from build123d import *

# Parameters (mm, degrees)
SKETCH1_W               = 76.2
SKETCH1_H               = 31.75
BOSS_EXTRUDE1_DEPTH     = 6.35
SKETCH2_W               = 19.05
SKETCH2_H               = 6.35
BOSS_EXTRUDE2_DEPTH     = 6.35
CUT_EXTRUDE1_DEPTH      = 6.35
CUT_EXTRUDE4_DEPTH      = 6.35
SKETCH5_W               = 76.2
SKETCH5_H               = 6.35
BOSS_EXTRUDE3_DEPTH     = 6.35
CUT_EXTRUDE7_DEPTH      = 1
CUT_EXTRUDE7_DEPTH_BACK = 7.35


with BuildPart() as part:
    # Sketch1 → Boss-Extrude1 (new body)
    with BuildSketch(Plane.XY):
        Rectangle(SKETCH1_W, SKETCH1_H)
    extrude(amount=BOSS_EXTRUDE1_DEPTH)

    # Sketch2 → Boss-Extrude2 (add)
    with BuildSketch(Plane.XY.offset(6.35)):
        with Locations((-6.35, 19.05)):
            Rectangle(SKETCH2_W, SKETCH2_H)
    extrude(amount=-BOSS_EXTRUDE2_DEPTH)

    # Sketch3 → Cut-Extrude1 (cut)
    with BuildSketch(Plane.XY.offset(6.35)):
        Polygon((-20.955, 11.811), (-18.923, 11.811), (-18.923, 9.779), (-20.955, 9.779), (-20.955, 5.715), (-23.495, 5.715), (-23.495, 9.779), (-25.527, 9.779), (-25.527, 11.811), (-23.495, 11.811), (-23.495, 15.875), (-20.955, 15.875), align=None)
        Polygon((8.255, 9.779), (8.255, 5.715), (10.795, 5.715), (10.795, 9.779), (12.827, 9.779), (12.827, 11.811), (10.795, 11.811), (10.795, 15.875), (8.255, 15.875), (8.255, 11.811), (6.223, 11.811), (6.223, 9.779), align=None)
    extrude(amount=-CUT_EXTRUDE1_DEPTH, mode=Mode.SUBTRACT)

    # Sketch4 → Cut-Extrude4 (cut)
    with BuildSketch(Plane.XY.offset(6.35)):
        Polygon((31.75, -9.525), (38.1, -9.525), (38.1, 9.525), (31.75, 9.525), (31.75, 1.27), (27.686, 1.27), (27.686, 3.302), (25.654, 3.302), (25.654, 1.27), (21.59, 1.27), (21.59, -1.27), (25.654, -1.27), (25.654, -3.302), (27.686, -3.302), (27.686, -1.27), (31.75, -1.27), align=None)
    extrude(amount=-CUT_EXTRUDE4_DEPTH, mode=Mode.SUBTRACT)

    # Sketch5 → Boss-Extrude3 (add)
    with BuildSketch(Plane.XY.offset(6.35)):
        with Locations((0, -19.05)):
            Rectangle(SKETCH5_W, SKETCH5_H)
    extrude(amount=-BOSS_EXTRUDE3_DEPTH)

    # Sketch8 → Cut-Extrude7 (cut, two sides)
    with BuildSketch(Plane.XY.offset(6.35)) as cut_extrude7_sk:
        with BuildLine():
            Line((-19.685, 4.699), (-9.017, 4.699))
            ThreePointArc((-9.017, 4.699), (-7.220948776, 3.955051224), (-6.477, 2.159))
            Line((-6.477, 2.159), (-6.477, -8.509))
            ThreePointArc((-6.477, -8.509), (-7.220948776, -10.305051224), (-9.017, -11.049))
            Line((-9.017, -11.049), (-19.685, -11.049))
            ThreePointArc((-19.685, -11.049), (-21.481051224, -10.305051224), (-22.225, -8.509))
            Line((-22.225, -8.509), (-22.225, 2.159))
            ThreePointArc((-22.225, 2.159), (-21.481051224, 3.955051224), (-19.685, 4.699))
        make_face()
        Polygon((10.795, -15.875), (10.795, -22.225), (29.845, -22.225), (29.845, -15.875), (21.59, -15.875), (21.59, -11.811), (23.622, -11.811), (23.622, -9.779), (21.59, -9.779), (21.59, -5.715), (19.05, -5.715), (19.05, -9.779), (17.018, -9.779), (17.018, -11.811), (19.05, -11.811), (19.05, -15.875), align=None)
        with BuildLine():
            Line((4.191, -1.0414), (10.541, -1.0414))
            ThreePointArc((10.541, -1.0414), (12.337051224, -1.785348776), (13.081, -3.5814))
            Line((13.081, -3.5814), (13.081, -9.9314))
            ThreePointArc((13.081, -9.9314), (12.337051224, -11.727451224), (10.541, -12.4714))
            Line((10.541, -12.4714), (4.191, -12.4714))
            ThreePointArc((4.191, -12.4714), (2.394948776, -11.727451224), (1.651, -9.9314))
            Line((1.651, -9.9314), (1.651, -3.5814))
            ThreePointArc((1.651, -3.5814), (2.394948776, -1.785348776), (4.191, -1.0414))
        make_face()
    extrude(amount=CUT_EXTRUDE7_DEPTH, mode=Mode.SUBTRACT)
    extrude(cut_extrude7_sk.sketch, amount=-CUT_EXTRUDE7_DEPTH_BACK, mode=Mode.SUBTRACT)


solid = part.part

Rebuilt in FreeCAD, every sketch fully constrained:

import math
import FreeCAD as App
import Part
import Sketcher
Q = App.Units.Quantity


def add_polygon(sketch, points):
    """Adds a closed chain of lines whose ends are joined by coincident constraints."""
    first, n = sketch.GeometryCount, len(points)
    for a, b in zip(points, points[1:] + points[:1]):
        sketch.addGeometry(Part.LineSegment(App.Vector(*a, 0), App.Vector(*b, 0)), False)
    for i in range(n):
        sketch.addConstraint(Sketcher.Constraint("Coincident", first + i, 2, first + (i + 1) % n, 1))

doc = App.newDocument("Part")
body = doc.addObject("PartDesign::Body", "Body")

# Sketch on XY plane
sketch1 = doc.addObject("Sketcher::SketchObject", "Sketch")
body.addObject(sketch1)
sketch1.AttachmentSupport = (doc.XY_Plane, [""])
sketch1.MapMode = "FlatFace"
add_polygon(sketch1, [(-38, 16), (-38, -16), (38, -16), (38, 16)])  # lines 0-3
sketch1.addConstraint([
    Sketcher.Constraint("Vertical", 0),
    Sketcher.Constraint("Horizontal", 1),
    Sketcher.Constraint("Vertical", 2),
    Sketcher.Constraint("Horizontal", 3),
    Sketcher.Constraint("Symmetric", 0, 2, 2, 2, -1, 1),
    Sketcher.Constraint("DistanceX", 1, 1, 1, 2, Q("3 in")),
    Sketcher.Constraint("DistanceY", 0, 2, 0, 1, Q("1.25 in")),
])
pad1 = doc.addObject("PartDesign::Pad", "Pad")
body.addObject(pad1)
pad1.Profile = sketch1
pad1.Length = Q("0.25 in")

# Sketch on XY plane
sketch2 = doc.addObject("Sketcher::SketchObject", "Sketch001")
body.addObject(sketch2)
sketch2.AttachmentSupport = (doc.XY_Plane, [""])
sketch2.MapMode = "FlatFace"
sketch2.AttachmentOffset = App.Placement(App.Vector(0, 0, 0.25 * 25.4), App.Rotation())
add_polygon(sketch2, [(-16, 22), (-16, 16), (3, 16), (3, 22)])  # lines 0-3
sketch2.addConstraint([
    Sketcher.Constraint("Vertical", 0),
    Sketcher.Constraint("Horizontal", 1),
    Sketcher.Constraint("Vertical", 2),
    Sketcher.Constraint("Horizontal", 3),
    Sketcher.Constraint("DistanceX", 1, 1, 1, 2, Q("0.75 in")),
    Sketcher.Constraint("DistanceY", 0, 2, 0, 1, Q("0.25 in")),
    Sketcher.Constraint("DistanceX", 0, 2, -1, 1, Q("0.625 in")),
    Sketcher.Constraint("DistanceY", -1, 1, 0, 2, Q("0.625 in")),
])
pad2 = doc.addObject("PartDesign::Pad", "Pad001")
body.addObject(pad2)
pad2.Profile = sketch2
pad2.Length = Q("0.25 in")
pad2.Reversed = True

# Sketch on XY plane
sketch3 = doc.addObject("Sketcher::SketchObject", "Sketch002")
body.addObject(sketch3)
sketch3.AttachmentSupport = (doc.XY_Plane, [""])
sketch3.MapMode = "FlatFace"
sketch3.AttachmentOffset = App.Placement(App.Vector(0, 0, 0.25 * 25.4), App.Rotation())
add_polygon(sketch3, [(-18.9, 11.8), (-21, 11.8), (-21, 15.9), (-23.5, 15.9), (-23.5, 11.8), (-25.5, 11.8), (-25.5, 9.8), (-23.5, 9.8), (-23.5, 5.7), (-21, 5.7), (-21, 9.8), (-18.9, 9.8)])  # lines 0-11
add_polygon(sketch3, [(8.3, 9.8), (8.3, 5.7), (10.8, 5.7), (10.8, 9.8), (12.8, 9.8), (12.8, 11.8), (10.8, 11.8), (10.8, 15.9), (8.3, 15.9), (8.3, 11.8), (6.2, 11.8), (6.2, 9.8)])  # lines 12-23
sketch3.addConstraint([
    Sketcher.Constraint("Horizontal", 0),
    Sketcher.Constraint("Vertical", 1),
    Sketcher.Constraint("Horizontal", 2),
    Sketcher.Constraint("Vertical", 3),
    Sketcher.Constraint("Horizontal", 4),
    Sketcher.Constraint("Vertical", 5),
    Sketcher.Constraint("Horizontal", 6),
    Sketcher.Constraint("Vertical", 7),
    Sketcher.Constraint("Horizontal", 8),
    Sketcher.Constraint("Vertical", 9),
    Sketcher.Constraint("Horizontal", 10),
    Sketcher.Constraint("Vertical", 11),
    Sketcher.Constraint("Vertical", 12),
    Sketcher.Constraint("Horizontal", 13),
    Sketcher.Constraint("Vertical", 14),
    Sketcher.Constraint("Horizontal", 15),
    Sketcher.Constraint("Vertical", 16),
    Sketcher.Constraint("Horizontal", 17),
    Sketcher.Constraint("Vertical", 18),
    Sketcher.Constraint("Horizontal", 19),
    Sketcher.Constraint("Vertical", 20),
    Sketcher.Constraint("Horizontal", 21),
    Sketcher.Constraint("Vertical", 22),
    Sketcher.Constraint("Horizontal", 23),
    Sketcher.Constraint("Horizontal", 0, 2, 3, 2),
    Sketcher.Constraint("Horizontal", 6, 2, 9, 2),
    Sketcher.Constraint("Horizontal", 8, 2, 12, 2),
    Sketcher.Constraint("Horizontal", 10, 2, 14, 2),
    Sketcher.Constraint("Horizontal", 11, 2, 16, 2),
    Sketcher.Constraint("Horizontal", 2, 2, 18, 2),
    Sketcher.Constraint("Horizontal", 17, 2, 20, 2),
    Sketcher.Constraint("Horizontal", 15, 2, 22, 2),
    Sketcher.Constraint("Vertical", 3, 2, 6, 2),
    Sketcher.Constraint("Vertical", 1, 2, 8, 2),
    Sketcher.Constraint("Vertical", 14, 2, 17, 2),
    Sketcher.Constraint("Vertical", 12, 2, 19, 2),
    Sketcher.Constraint("Equal", 0, 4),
    Sketcher.Constraint("Equal", 8, 13),
    Sketcher.Constraint("Equal", 10, 15),
    Sketcher.Constraint("Equal", 17, 21),
    Sketcher.Constraint("Equal", 23, 5),
    Sketcher.Constraint("Equal", 3, 7),
    Sketcher.Constraint("DistanceX", 2, 2, 2, 1, Q("0.1 in")),
    Sketcher.Constraint("DistanceX", 0, 2, 0, 1, Q("0.08 in")),
    Sketcher.Constraint("DistanceY", 1, 1, 1, 2, Q("0.16 in")),
    Sketcher.Constraint("DistanceX", 10, 2, 12, 2, Q("1.07 in")),
    Sketcher.Constraint("DistanceX", 0, 2, -1, 1, Q("0.825 in")),
    Sketcher.Constraint("DistanceY", -1, 1, 0, 2, Q("0.465 in")),
])
pocket1 = doc.addObject("PartDesign::Pocket", "Pocket")
body.addObject(pocket1)
pocket1.Profile = sketch3
pocket1.Length = Q("0.25 in")

# Sketch on XY plane
sketch4 = doc.addObject("Sketcher::SketchObject", "Sketch003")
body.addObject(sketch4)
sketch4.AttachmentSupport = (doc.XY_Plane, [""])
sketch4.MapMode = "FlatFace"
sketch4.AttachmentOffset = App.Placement(App.Vector(0, 0, 0.25 * 25.4), App.Rotation())
add_polygon(sketch4, [(31.8, -9.5), (38.1, -9.5), (38.1, 9.5), (31.8, 9.5), (31.8, 1.3), (27.7, 1.3), (27.7, 3.3), (25.7, 3.3), (25.7, 1.3), (21.6, 1.3), (21.6, -1.3), (25.7, -1.3), (25.7, -3.3), (27.7, -3.3), (27.7, -1.3), (31.8, -1.3)])  # lines 0-15
sketch4.addConstraint([
    Sketcher.Constraint("Horizontal", 0),
    Sketcher.Constraint("Vertical", 1),
    Sketcher.Constraint("Horizontal", 2),
    Sketcher.Constraint("Vertical", 3),
    Sketcher.Constraint("Horizontal", 4),
    Sketcher.Constraint("Vertical", 5),
    Sketcher.Constraint("Horizontal", 6),
    Sketcher.Constraint("Vertical", 7),
    Sketcher.Constraint("Horizontal", 8),
    Sketcher.Constraint("Vertical", 9),
    Sketcher.Constraint("Horizontal", 10),
    Sketcher.Constraint("Vertical", 11),
    Sketcher.Constraint("Horizontal", 12),
    Sketcher.Constraint("Vertical", 13),
    Sketcher.Constraint("Horizontal", 14),
    Sketcher.Constraint("Vertical", 15),
    Sketcher.Constraint("Symmetric", 7, 2, 10, 2, -1),
    Sketcher.Constraint("Symmetric", 5, 2, 12, 2, -1),
    Sketcher.Constraint("Symmetric", 3, 2, 14, 2, -1),
    Sketcher.Constraint("Horizontal", 4, 2, 7, 2),
    Sketcher.Constraint("Equal", 4, 8),
    Sketcher.Constraint("Equal", 12, 5),
    Sketcher.Constraint("Equal", 3, 15),
    Sketcher.Constraint("DistanceY", 9, 2, 9, 1, Q("0.1 in")),
    Sketcher.Constraint("DistanceX", 0, 1, 0, 2, Q("0.25 in")),
    Sketcher.Constraint("DistanceX", 4, 2, 4, 1, Q("0.16 in")),
    Sketcher.Constraint("DistanceX", 6, 2, 6, 1, Q("0.08 in")),
    Sketcher.Constraint("DistanceY", 1, 1, 1, 2, Q("0.75 in")),
    Sketcher.Constraint("DistanceX", -1, 1, 0, 2, Q("1.5 in")),
])
pocket2 = doc.addObject("PartDesign::Pocket", "Pocket001")
body.addObject(pocket2)
pocket2.Profile = sketch4
pocket2.Length = Q("0.25 in")

# Sketch on XY plane
sketch5 = doc.addObject("Sketcher::SketchObject", "Sketch004")
body.addObject(sketch5)
sketch5.AttachmentSupport = (doc.XY_Plane, [""])
sketch5.MapMode = "FlatFace"
sketch5.AttachmentOffset = App.Placement(App.Vector(0, 0, 0.25 * 25.4), App.Rotation())
add_polygon(sketch5, [(-38, -16), (-38, -22), (38, -22), (38, -16)])  # lines 0-3
sketch5.addConstraint([
    Sketcher.Constraint("Vertical", 0),
    Sketcher.Constraint("Horizontal", 1),
    Sketcher.Constraint("Vertical", 2),
    Sketcher.Constraint("Horizontal", 3),
    Sketcher.Constraint("DistanceX", 1, 1, 1, 2, Q("3 in")),
    Sketcher.Constraint("DistanceY", 0, 2, 0, 1, Q("0.25 in")),
    Sketcher.Constraint("DistanceX", 0, 2, -1, 1, Q("1.5 in")),
    Sketcher.Constraint("DistanceY", 0, 2, -1, 1, Q("0.875 in")),
])
pad3 = doc.addObject("PartDesign::Pad", "Pad002")
body.addObject(pad3)
pad3.Profile = sketch5
pad3.Length = Q("0.25 in")
pad3.Reversed = True

# Sketch on XY plane
sketch6 = doc.addObject("Sketcher::SketchObject", "Sketch005")
body.addObject(sketch6)
sketch6.AttachmentSupport = (doc.XY_Plane, [""])
sketch6.MapMode = "FlatFace"
sketch6.AttachmentOffset = App.Placement(App.Vector(0, 0, 0.25 * 25.4), App.Rotation())
sketch6.addGeometry(Part.LineSegment(App.Vector(-9, 4.7, 0), App.Vector(-19.7, 4.7, 0)), False)  # 0
sketch6.addGeometry(Part.ArcOfCircle(Part.Circle(App.Vector(-19.7, 2.2, 0), App.Vector(0, 0, 1), 2.5), math.radians(90), math.radians(180)), False)  # 1
sketch6.addGeometry(Part.LineSegment(App.Vector(-22.2, 2.2, 0), App.Vector(-22.2, -8.5, 0)), False)  # 2
sketch6.addGeometry(Part.ArcOfCircle(Part.Circle(App.Vector(-19.7, -8.5, 0), App.Vector(0, 0, 1), 2.5), math.radians(-180), math.radians(-90)), False)  # 3
sketch6.addGeometry(Part.LineSegment(App.Vector(-19.7, -11, 0), App.Vector(-9, -11, 0)), False)  # 4
sketch6.addGeometry(Part.ArcOfCircle(Part.Circle(App.Vector(-9, -8.5, 0), App.Vector(0, 0, 1), 2.5), math.radians(-90), math.radians(0)), False)  # 5
sketch6.addGeometry(Part.LineSegment(App.Vector(-6.5, -8.5, 0), App.Vector(-6.5, 2.2, 0)), False)  # 6
sketch6.addGeometry(Part.ArcOfCircle(Part.Circle(App.Vector(-9, 2.2, 0), App.Vector(0, 0, 1), 2.5), math.radians(0), math.radians(90)), False)  # 7
add_polygon(sketch6, [(10.8, -15.9), (10.8, -22.2), (29.8, -22.2), (29.8, -15.9), (21.6, -15.9), (21.6, -11.8), (23.6, -11.8), (23.6, -9.8), (21.6, -9.8), (21.6, -5.7), (19.1, -5.7), (19.1, -9.8), (17, -9.8), (17, -11.8), (19.1, -11.8), (19.1, -15.9)])  # lines 8-23
sketch6.addGeometry(Part.LineSegment(App.Vector(10.5, -1, 0), App.Vector(4.2, -1, 0)), False)  # 24
sketch6.addGeometry(Part.ArcOfCircle(Part.Circle(App.Vector(4.2, -3.6, 0), App.Vector(0, 0, 1), 2.5), math.radians(90), math.radians(180)), False)  # 25
sketch6.addGeometry(Part.LineSegment(App.Vector(1.7, -3.6, 0), App.Vector(1.7, -9.9, 0)), False)  # 26
sketch6.addGeometry(Part.ArcOfCircle(Part.Circle(App.Vector(4.2, -9.9, 0), App.Vector(0, 0, 1), 2.5), math.radians(-180), math.radians(-90)), False)  # 27
sketch6.addGeometry(Part.LineSegment(App.Vector(4.2, -12.5, 0), App.Vector(10.5, -12.5, 0)), False)  # 28
sketch6.addGeometry(Part.ArcOfCircle(Part.Circle(App.Vector(10.5, -9.9, 0), App.Vector(0, 0, 1), 2.5), math.radians(-90), math.radians(0)), False)  # 29
sketch6.addGeometry(Part.LineSegment(App.Vector(13.1, -9.9, 0), App.Vector(13.1, -3.6, 0)), False)  # 30
sketch6.addGeometry(Part.ArcOfCircle(Part.Circle(App.Vector(10.5, -3.6, 0), App.Vector(0, 0, 1), 2.5), math.radians(0), math.radians(90)), False)  # 31
sketch6.addConstraint([
    Sketcher.Constraint("Tangent", 0, 2, 1, 1),
    Sketcher.Constraint("Tangent", 1, 2, 2, 1),
    Sketcher.Constraint("Tangent", 2, 2, 3, 1),
    Sketcher.Constraint("Tangent", 3, 2, 4, 1),
    Sketcher.Constraint("Tangent", 4, 2, 5, 1),
    Sketcher.Constraint("Tangent", 5, 2, 6, 1),
    Sketcher.Constraint("Tangent", 6, 2, 7, 1),
    Sketcher.Constraint("Tangent", 7, 2, 0, 1),
    Sketcher.Constraint("Tangent", 24, 2, 25, 1),
    Sketcher.Constraint("Tangent", 25, 2, 26, 1),
    Sketcher.Constraint("Tangent", 26, 2, 27, 1),
    Sketcher.Constraint("Tangent", 27, 2, 28, 1),
    Sketcher.Constraint("Tangent", 28, 2, 29, 1),
    Sketcher.Constraint("Tangent", 29, 2, 30, 1),
    Sketcher.Constraint("Tangent", 30, 2, 31, 1),
    Sketcher.Constraint("Tangent", 31, 2, 24, 1),
    Sketcher.Constraint("Horizontal", 0),
    Sketcher.Constraint("Vertical", 2),
    Sketcher.Constraint("Horizontal", 4),
    Sketcher.Constraint("Vertical", 6),
    Sketcher.Constraint("Vertical", 8),
    Sketcher.Constraint("Horizontal", 9),
    Sketcher.Constraint("Vertical", 10),
    Sketcher.Constraint("Horizontal", 11),
    Sketcher.Constraint("Vertical", 12),
    Sketcher.Constraint("Horizontal", 13),
    Sketcher.Constraint("Vertical", 14),
    Sketcher.Constraint("Horizontal", 15),
    Sketcher.Constraint("Vertical", 16),
    Sketcher.Constraint("Horizontal", 17),
    Sketcher.Constraint("Vertical", 18),
    Sketcher.Constraint("Horizontal", 19),
    Sketcher.Constraint("Vertical", 20),
    Sketcher.Constraint("Horizontal", 21),
    Sketcher.Constraint("Vertical", 22),
    Sketcher.Constraint("Horizontal", 23),
    Sketcher.Constraint("Horizontal", 24),
    Sketcher.Constraint("Vertical", 26),
    Sketcher.Constraint("Horizontal", 28),
    Sketcher.Constraint("Vertical", 30),
    Sketcher.Constraint("Equal", 1, 3),
    Sketcher.Constraint("Equal", 3, 5),
    Sketcher.Constraint("Equal", 5, 7),
    Sketcher.Constraint("Equal", 7, 25),
    Sketcher.Constraint("Equal", 25, 27),
    Sketcher.Constraint("Equal", 27, 29),
    Sketcher.Constraint("Equal", 29, 31),
    Sketcher.Constraint("Horizontal", 15, 2, 18, 2),
    Sketcher.Constraint("Horizontal", 13, 2, 20, 2),
    Sketcher.Constraint("Horizontal", 11, 2, 22, 2),
    Sketcher.Constraint("Vertical", 12, 2, 15, 2),
    Sketcher.Constraint("Vertical", 18, 2, 21, 2),
    Sketcher.Constraint("Equal", 15, 19),
    Sketcher.Constraint("Equal", 11, 23),
    Sketcher.Constraint("Equal", 4, 2),
    Sketcher.Constraint("Equal", 28, 8),
    Sketcher.Constraint("Equal", 21, 14),
    Sketcher.Constraint("Equal", 12, 16),
    Sketcher.Constraint("Equal", 10, 26),
    Sketcher.Constraint("Radius", 1, Q("0.1 in")),
    Sketcher.Constraint("DistanceX", 17, 2, 17, 1, Q("0.1 in")),
    Sketcher.Constraint("DistanceX", 0, 2, 0, 1, Q("0.42 in")),
    Sketcher.Constraint("DistanceX", 9, 1, 9, 2, Q("0.75 in")),
    Sketcher.Constraint("DistanceX", 13, 1, 13, 2, Q("0.08 in")),
    Sketcher.Constraint("DistanceX", 24, 2, 24, 1, Q("0.25 in")),
    Sketcher.Constraint("DistanceY", 12, 1, 12, 2, Q("0.16 in")),
    Sketcher.Constraint("DistanceX", -1, 1, 11, 2, Q("0.85 in")),
    Sketcher.Constraint("DistanceX", 5, 3, 25, 3, Q("0.52 in")),
    Sketcher.Constraint("DistanceX", 29, 3, 8, 2, Q("0.01 in")),
    Sketcher.Constraint("DistanceY", 8, 2, 5, 2, Q("0.54 in")),
    Sketcher.Constraint("DistanceY", -1, 1, 1, 3, Q("0.085 in")),
    Sketcher.Constraint("DistanceY", 25, 3, -1, 1, Q("0.141 in")),
])
pocket3 = doc.addObject("PartDesign::Pocket", "Pocket002")
body.addObject(pocket3)
pocket3.Profile = sketch6
pocket3.Type = "ThroughAll"
pocket3.Midplane = True

doc.recompute()
